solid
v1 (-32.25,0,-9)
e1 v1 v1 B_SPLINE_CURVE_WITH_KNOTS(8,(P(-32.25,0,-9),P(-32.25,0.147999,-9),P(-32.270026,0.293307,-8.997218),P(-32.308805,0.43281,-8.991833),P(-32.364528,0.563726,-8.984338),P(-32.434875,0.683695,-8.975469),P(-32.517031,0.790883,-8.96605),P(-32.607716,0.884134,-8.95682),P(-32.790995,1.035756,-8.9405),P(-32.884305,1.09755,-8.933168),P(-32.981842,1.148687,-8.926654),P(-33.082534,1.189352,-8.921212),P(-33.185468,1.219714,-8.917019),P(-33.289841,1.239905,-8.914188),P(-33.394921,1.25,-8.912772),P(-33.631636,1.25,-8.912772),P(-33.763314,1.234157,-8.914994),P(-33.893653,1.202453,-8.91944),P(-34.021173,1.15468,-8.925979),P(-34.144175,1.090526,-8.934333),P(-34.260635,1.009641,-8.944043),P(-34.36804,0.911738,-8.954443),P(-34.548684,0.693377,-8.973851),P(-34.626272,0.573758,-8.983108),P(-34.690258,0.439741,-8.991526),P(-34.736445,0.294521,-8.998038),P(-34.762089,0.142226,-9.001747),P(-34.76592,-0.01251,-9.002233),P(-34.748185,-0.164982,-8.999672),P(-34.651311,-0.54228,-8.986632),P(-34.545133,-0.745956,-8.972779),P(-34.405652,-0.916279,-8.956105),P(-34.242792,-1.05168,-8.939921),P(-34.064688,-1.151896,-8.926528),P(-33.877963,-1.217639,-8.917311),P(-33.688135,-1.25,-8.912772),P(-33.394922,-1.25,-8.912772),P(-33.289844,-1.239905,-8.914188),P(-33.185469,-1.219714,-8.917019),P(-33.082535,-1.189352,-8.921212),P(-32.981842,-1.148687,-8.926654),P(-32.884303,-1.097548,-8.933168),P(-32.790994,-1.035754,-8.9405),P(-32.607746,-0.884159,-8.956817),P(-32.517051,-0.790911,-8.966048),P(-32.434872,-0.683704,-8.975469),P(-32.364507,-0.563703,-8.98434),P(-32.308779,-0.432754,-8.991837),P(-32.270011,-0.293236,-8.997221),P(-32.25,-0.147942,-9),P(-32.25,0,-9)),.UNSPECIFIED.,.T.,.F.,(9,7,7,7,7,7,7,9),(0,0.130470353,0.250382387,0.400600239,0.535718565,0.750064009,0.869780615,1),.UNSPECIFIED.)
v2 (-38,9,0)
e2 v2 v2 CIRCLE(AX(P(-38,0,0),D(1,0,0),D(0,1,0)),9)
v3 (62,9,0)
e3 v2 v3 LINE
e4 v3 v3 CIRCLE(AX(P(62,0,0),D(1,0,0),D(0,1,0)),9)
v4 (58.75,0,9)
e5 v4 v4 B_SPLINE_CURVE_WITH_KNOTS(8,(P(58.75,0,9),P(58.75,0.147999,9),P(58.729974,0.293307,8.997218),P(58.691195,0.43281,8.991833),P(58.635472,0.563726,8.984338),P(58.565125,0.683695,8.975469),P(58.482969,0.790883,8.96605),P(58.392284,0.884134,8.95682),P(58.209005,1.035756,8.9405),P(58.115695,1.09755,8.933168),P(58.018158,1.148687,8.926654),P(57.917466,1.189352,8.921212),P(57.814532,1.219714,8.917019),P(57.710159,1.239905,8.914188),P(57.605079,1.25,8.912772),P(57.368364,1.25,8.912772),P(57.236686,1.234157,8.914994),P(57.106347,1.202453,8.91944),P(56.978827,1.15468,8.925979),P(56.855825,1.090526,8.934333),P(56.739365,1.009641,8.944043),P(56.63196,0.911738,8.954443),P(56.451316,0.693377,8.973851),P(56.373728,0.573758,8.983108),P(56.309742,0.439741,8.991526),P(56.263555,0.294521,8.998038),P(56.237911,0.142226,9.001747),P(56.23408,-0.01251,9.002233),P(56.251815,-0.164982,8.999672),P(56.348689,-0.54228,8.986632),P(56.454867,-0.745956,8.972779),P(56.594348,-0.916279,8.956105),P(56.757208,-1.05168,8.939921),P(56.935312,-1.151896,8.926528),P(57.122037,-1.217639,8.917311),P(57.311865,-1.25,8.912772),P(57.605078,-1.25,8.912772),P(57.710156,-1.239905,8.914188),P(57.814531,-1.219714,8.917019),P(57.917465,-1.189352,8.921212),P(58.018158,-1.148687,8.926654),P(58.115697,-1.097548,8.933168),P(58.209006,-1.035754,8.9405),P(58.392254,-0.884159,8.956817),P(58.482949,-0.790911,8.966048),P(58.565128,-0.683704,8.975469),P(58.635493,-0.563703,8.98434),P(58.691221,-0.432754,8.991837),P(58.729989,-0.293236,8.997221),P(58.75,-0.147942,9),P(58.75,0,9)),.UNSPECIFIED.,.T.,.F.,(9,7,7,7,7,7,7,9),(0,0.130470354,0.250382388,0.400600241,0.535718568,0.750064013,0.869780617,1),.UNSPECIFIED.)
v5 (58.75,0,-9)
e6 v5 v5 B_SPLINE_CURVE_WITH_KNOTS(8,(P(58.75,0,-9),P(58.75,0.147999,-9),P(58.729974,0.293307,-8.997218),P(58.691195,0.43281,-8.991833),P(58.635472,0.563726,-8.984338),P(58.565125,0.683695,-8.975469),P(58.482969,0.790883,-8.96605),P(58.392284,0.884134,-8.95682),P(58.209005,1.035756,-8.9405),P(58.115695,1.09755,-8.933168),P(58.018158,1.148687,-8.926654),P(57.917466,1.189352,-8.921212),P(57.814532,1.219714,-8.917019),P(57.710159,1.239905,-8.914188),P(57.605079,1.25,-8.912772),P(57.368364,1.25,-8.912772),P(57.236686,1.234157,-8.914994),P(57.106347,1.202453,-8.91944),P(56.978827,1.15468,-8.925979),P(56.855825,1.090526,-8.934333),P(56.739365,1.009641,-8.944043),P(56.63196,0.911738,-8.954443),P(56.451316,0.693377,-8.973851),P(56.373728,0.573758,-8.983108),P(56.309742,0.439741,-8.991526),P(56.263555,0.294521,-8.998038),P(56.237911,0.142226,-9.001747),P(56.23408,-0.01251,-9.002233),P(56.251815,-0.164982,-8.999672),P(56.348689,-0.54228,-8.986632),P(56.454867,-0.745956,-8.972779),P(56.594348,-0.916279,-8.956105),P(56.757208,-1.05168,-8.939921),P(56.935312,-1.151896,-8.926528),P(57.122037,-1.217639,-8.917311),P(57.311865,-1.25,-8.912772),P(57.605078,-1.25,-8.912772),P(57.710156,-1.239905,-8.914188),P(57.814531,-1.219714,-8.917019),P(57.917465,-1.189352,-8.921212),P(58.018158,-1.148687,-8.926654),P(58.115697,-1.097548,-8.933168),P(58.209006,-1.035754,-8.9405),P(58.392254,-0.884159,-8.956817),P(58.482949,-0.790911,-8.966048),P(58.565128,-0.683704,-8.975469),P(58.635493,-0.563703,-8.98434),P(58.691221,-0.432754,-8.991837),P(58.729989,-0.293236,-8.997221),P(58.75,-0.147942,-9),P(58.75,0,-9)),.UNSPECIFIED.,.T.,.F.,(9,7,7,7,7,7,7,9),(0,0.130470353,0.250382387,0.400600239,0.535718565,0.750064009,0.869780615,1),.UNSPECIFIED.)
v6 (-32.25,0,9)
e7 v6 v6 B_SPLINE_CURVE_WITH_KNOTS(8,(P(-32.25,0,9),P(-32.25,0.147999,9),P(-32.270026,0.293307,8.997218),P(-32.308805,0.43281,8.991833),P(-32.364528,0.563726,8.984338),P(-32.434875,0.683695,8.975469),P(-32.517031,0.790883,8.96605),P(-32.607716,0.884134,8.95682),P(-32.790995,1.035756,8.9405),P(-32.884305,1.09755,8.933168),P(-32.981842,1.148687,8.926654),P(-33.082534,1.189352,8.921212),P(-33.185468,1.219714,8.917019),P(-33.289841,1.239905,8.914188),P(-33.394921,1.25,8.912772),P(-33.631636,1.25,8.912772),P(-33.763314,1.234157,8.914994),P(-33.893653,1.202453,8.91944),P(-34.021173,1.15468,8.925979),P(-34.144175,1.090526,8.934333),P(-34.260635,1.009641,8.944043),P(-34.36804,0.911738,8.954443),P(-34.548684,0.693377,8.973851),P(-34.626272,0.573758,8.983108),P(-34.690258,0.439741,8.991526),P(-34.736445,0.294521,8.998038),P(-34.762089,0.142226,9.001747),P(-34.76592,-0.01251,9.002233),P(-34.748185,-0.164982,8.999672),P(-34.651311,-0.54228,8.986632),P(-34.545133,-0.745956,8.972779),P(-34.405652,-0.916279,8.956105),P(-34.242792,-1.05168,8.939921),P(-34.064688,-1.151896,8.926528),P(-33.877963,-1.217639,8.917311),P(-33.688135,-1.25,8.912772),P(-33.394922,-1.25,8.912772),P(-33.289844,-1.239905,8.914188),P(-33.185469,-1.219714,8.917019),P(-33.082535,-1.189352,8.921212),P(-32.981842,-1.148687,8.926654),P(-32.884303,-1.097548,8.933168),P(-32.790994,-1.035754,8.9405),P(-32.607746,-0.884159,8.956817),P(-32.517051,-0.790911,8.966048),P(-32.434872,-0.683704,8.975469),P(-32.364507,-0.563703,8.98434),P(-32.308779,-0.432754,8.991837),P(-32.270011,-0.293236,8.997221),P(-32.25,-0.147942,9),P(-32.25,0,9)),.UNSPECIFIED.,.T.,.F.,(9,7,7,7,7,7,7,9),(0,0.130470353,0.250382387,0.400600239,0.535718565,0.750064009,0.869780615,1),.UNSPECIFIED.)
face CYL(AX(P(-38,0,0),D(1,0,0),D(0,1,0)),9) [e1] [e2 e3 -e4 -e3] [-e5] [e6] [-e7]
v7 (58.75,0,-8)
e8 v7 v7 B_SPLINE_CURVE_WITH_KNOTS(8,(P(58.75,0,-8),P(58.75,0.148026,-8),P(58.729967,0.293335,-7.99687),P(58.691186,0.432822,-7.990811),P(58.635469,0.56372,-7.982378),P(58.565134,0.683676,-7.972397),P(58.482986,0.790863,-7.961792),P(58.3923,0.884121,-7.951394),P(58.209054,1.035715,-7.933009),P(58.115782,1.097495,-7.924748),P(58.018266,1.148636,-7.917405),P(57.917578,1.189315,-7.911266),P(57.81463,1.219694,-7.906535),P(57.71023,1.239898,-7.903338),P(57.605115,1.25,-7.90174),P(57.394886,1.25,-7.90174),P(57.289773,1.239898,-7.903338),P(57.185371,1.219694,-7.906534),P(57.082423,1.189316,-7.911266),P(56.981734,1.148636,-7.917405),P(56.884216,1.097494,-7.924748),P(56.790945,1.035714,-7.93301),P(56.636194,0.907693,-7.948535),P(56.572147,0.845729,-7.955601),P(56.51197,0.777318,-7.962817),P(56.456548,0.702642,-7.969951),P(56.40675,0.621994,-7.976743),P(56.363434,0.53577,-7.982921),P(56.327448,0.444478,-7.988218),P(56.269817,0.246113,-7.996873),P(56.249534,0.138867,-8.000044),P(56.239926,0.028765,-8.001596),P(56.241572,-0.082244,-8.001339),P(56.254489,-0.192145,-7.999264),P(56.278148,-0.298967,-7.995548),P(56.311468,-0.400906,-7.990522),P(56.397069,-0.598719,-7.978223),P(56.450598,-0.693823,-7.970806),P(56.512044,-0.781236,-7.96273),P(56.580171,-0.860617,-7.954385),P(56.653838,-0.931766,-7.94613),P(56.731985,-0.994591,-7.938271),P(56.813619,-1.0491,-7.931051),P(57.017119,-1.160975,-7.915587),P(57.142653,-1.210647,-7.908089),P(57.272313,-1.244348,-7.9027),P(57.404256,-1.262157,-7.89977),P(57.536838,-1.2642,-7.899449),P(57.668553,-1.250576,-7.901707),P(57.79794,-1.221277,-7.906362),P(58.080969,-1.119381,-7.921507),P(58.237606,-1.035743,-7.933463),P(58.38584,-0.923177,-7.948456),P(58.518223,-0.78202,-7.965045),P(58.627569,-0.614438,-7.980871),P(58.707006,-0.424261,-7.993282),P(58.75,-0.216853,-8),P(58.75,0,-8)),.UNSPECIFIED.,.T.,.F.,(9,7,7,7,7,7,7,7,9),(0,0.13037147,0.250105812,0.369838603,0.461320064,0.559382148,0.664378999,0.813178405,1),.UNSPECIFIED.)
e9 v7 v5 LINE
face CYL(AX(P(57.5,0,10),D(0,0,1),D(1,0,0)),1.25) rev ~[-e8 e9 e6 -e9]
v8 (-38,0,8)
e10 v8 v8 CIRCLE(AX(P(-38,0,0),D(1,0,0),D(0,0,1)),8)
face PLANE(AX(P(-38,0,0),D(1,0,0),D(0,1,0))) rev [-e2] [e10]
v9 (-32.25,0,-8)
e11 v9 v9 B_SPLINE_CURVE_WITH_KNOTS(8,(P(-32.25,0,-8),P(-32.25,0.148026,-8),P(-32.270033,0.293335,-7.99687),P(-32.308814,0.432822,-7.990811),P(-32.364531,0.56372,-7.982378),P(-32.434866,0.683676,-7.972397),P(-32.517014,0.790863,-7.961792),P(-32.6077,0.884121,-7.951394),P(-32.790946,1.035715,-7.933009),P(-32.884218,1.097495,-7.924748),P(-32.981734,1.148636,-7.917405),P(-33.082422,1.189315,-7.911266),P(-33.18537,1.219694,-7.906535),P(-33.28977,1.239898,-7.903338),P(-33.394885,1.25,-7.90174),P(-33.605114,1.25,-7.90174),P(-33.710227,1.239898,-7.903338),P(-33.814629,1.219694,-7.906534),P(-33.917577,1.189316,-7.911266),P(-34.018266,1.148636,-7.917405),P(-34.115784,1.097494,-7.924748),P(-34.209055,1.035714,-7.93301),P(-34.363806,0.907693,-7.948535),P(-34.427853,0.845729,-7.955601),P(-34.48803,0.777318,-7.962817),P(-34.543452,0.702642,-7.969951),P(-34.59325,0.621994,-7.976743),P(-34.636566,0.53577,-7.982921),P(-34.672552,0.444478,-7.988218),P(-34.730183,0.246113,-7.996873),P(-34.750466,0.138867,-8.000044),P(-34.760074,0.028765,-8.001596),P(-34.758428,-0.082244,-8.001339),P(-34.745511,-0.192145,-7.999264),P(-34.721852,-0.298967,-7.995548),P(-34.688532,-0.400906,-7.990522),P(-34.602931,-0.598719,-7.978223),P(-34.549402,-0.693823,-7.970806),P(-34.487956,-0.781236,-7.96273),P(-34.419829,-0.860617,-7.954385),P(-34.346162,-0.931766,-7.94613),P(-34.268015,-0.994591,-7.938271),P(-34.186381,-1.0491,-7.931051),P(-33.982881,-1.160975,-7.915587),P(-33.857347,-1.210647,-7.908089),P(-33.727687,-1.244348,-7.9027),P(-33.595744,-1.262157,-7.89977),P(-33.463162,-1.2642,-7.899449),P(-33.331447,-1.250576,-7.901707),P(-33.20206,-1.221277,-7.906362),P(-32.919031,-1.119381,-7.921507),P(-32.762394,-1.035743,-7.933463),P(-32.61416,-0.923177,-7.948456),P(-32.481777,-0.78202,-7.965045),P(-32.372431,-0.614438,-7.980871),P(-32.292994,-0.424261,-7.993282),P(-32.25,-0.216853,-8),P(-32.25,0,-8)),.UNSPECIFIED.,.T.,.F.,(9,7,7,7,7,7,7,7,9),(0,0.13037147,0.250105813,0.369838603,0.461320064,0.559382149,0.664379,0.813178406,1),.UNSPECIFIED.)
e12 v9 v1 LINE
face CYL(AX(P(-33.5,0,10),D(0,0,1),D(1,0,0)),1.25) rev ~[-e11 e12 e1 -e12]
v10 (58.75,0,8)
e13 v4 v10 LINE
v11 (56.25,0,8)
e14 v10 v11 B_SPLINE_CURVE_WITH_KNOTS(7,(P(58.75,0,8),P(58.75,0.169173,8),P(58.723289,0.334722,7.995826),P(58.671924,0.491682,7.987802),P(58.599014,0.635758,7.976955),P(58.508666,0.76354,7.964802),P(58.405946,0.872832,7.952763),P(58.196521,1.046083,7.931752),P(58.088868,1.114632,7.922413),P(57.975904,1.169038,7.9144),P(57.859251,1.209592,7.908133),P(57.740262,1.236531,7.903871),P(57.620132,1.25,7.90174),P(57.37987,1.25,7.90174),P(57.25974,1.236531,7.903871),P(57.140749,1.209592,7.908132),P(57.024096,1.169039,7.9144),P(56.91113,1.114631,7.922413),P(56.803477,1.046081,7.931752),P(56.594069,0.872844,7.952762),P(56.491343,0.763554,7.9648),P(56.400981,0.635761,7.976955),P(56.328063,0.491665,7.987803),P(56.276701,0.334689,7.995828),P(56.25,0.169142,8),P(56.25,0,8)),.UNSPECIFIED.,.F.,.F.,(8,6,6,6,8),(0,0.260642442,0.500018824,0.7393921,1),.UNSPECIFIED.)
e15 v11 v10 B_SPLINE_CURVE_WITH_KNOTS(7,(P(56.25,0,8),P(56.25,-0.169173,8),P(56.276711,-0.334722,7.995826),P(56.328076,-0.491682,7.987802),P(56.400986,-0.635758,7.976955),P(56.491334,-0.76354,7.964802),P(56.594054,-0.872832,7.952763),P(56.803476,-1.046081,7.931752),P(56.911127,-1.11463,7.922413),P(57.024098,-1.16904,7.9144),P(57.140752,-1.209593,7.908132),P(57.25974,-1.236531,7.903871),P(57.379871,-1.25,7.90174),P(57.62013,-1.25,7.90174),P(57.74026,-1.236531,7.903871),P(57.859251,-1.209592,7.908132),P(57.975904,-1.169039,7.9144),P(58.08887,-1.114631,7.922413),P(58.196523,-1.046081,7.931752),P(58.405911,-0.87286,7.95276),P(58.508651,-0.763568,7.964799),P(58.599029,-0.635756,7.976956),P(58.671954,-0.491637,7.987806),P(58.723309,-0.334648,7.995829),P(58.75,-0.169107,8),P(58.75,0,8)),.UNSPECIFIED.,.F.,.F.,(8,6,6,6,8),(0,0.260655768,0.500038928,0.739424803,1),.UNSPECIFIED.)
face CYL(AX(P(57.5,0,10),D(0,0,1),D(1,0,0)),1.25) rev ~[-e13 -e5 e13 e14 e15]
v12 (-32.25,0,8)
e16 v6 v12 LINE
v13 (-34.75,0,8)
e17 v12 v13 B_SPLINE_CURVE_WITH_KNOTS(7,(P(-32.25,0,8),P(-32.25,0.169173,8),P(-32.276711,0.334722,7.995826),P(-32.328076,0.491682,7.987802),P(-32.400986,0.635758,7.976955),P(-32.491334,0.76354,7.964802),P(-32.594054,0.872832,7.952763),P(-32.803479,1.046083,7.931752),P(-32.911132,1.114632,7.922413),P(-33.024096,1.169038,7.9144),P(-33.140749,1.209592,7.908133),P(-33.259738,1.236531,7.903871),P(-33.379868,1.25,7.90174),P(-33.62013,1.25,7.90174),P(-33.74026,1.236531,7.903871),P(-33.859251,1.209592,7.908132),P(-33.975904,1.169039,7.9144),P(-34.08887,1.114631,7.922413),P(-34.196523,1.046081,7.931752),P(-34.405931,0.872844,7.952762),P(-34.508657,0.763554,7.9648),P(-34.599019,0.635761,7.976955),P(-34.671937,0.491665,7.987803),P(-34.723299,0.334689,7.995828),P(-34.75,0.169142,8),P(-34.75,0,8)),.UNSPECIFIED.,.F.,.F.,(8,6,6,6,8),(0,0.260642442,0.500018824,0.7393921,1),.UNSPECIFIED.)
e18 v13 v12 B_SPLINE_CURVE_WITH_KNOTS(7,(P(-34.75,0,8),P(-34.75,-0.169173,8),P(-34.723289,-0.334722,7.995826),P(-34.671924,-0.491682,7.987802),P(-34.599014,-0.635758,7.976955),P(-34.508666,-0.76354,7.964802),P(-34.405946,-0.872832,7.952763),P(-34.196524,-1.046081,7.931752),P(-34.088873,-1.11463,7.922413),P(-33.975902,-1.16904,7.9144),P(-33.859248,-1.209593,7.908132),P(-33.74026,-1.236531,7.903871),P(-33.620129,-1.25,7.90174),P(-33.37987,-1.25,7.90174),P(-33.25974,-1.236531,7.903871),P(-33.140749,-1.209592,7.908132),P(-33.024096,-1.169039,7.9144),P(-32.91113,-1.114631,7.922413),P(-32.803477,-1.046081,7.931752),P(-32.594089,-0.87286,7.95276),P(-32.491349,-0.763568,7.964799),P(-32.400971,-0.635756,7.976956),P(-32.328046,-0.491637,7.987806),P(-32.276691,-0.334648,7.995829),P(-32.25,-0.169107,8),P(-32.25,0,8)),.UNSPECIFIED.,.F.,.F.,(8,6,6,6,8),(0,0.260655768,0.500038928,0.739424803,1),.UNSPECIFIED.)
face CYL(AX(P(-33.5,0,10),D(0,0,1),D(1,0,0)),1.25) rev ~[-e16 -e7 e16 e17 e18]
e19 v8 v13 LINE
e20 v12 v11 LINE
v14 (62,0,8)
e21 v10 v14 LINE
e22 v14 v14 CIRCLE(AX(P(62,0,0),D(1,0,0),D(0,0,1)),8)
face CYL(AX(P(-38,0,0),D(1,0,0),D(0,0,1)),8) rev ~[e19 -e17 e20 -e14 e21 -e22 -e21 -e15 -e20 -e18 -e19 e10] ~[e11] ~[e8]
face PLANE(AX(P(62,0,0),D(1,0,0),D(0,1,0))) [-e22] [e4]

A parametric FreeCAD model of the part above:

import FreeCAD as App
import Part
import Sketcher

V = App.Vector


def add_polygon(sketch, points):
    """Adds a closed chain of lines whose ends are joined by coincident constraints."""
    first, n = sketch.GeometryCount, len(points)
    for a, b in zip(points, points[1:] + points[:1]):
        sketch.addGeometry(Part.LineSegment(App.Vector(*a, 0), App.Vector(*b, 0)), False)
    for i in range(n):
        sketch.addConstraint(Sketcher.Constraint("Coincident", first + i, 2, first + (i + 1) % n, 1))

doc = App.newDocument("Part")
body = doc.addObject("PartDesign::Body", "Body")

sketch1 = body.newObject("Sketcher::SketchObject", "Sketch")
sketch1.AttachmentSupport = (doc.getObject("XY_Plane"), [""])
sketch1.MapMode = "FlatFace"
add_polygon(sketch1, [(62, 9), (-38, 9), (-38, 0), (62, 0)])
sketch1.addConstraint(Sketcher.Constraint("Horizontal", 0))
sketch1.addConstraint(Sketcher.Constraint("Vertical", 1))
sketch1.addConstraint(Sketcher.Constraint("Horizontal", 2))
sketch1.addConstraint(Sketcher.Constraint("Vertical", 3))
sketch1.addConstraint(Sketcher.Constraint("PointOnObject", 1, 2, -1))
sketch1.addConstraint(Sketcher.Constraint("DistanceX", 0, 2, 0, 1, 100.0))
sketch1.addConstraint(Sketcher.Constraint("DistanceY", 1, 2, 1, 1, 9.0))
sketch1.addConstraint(Sketcher.Constraint("DistanceX", 0, 2, -1, 1, 38.0))
revolution = body.newObject("PartDesign::Revolution", "Revolution")
revolution.Profile = sketch1
revolution.ReferenceAxis = (sketch1, ["H_Axis"])
revolution.Angle = 360

sketch2 = body.newObject("Sketcher::SketchObject", "Sketch001")
sketch2.AttachmentSupport = (doc.getObject("YZ_Plane"), [""])
sketch2.MapMode = "FlatFace"
sketch2.AttachmentOffset = App.Placement(V(0, 0, -38), App.Rotation())
sketch2.addGeometry(Part.Circle(V(0, 0, 0), V(0, 0, 1), 8), False)
sketch2.addConstraint(Sketcher.Constraint("Coincident", 0, 3, -1, 1))
sketch2.addConstraint(Sketcher.Constraint("Diameter", 0, 16.0))
doc.recompute()
hole = body.newObject("PartDesign::Hole", "Hole")
hole.Profile = sketch2
hole.ThreadType = "None"
hole.Diameter = 16
hole.DepthType = "ThroughAll"
hole.Reversed = True

sketch3 = body.newObject("Sketcher::SketchObject", "Sketch002")
sketch3.AttachmentSupport = (doc.getObject("XY_Plane"), [""])
sketch3.MapMode = "FlatFace"
sketch3.AttachmentOffset = App.Placement(V(0, 0, 10), App.Rotation())
sketch3.addGeometry(Part.Circle(V(-33.5, 0, 0), V(0, 0, 1), 1.2), False)
sketch3.addGeometry(Part.Circle(V(57.5, 0, 0), V(0, 0, 1), 1.2), False)
sketch3.addConstraint(Sketcher.Constraint("Equal", 0, 1))
sketch3.addConstraint(Sketcher.Constraint("PointOnObject", 0, 3, -1))
sketch3.addConstraint(Sketcher.Constraint("PointOnObject", 1, 3, -1))
sketch3.addConstraint(Sketcher.Constraint("Diameter", 0, 2.5))
sketch3.addConstraint(Sketcher.Constraint("DistanceX", 0, 3, 1, 3, 91.0))
sketch3.addConstraint(Sketcher.Constraint("DistanceX", 0, 3, -1, 1, 33.5))
pocket1 = body.newObject("PartDesign::Pocket", "Pocket")
pocket1.Profile = sketch3
pocket1.Type = "ThroughAll"

doc.recompute()
